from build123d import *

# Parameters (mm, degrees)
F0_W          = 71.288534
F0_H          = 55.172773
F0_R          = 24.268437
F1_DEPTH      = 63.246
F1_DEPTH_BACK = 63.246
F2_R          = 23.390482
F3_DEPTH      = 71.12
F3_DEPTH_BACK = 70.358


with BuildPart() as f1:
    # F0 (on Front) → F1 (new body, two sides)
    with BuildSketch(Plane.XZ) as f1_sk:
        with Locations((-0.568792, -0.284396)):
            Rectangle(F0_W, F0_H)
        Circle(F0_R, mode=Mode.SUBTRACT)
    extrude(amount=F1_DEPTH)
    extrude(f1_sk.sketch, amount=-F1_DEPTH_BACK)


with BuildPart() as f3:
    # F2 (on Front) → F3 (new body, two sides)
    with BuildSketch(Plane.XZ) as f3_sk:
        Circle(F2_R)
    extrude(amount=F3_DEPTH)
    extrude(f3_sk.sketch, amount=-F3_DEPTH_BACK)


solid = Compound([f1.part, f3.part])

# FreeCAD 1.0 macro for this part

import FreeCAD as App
import Part
import Sketcher
from FreeCAD import Vector
Q = App.Units.Quantity

doc = App.newDocument("Part")
body = doc.addObject("PartDesign::Body", "Body")

# Sketch on XZ plane
sketch1 = doc.addObject("Sketcher::SketchObject", "Sketch")
body.addObject(sketch1)
sketch1.AttachmentSupport = (doc.XZ_Plane, [""])
sketch1.MapMode = "FlatFace"
sketch1.addGeometry([
    Part.LineSegment(Vector(-36, 27, 0), Vector(-36, -28, 0)),  # 0
    Part.LineSegment(Vector(-36, -28, 0), Vector(35, -28, 0)),  # 1
    Part.LineSegment(Vector(35, -28, 0), Vector(35, 27, 0)),  # 2
    Part.LineSegment(Vector(35, 27, 0), Vector(-36, 27, 0)),  # 3
    Part.Circle(Vector(0, 0, 0), Vector(0, 0, 1), 24),  # 4
], False)
sketch1.addConstraint([
    Sketcher.Constraint("Coincident", 0, 2, 1, 1),
    Sketcher.Constraint("Coincident", 1, 2, 2, 1),
    Sketcher.Constraint("Coincident", 2, 2, 3, 1),
    Sketcher.Constraint("Coincident", 3, 2, 0, 1),
    Sketcher.Constraint("Vertical", 0),
    Sketcher.Constraint("Horizontal", 1),
    Sketcher.Constraint("Vertical", 2),
    Sketcher.Constraint("Horizontal", 3),
    Sketcher.Constraint("Coincident", 4, 3, -1, 1),
    Sketcher.Constraint("Diameter", 4, Q("48.536874 mm")),
    Sketcher.Constraint("DistanceX", 1, 1, 1, 2, Q("71.288534 mm")),
    Sketcher.Constraint("DistanceY", 0, 2, 0, 1, Q("55.172773 mm")),
    Sketcher.Constraint("DistanceX", 0, 2, -1, 1, Q("36.213059 mm")),
    Sketcher.Constraint("DistanceY", -1, 1, 2, 2, Q("27.30199 mm")),
])
pad1 = doc.addObject("PartDesign::Pad", "Pad")
body.addObject(pad1)
pad1.Profile = sketch1
pad1.Type = "TwoLengths"
pad1.Length = Q("2.49 in")
pad1.Length2 = Q("2.49 in")
body2 = doc.addObject("PartDesign::Body", "Body001")

# Sketch on XZ plane
sketch2 = doc.addObject("Sketcher::SketchObject", "Sketch001")
body2.addObject(sketch2)
sketch2.AttachmentSupport = (doc.getObject("XZ_Plane001"), [""])
sketch2.MapMode = "FlatFace"
sketch2.addGeometry(Part.Circle(Vector(0, 0, 0), Vector(0, 0, 1), 23), False)
sketch2.addConstraint([
    Sketcher.Constraint("Coincident", 0, 3, -1, 1),
    Sketcher.Constraint("Diameter", 0, Q("46.780964 mm")),
])
pad2 = doc.addObject("PartDesign::Pad", "Pad001")
body2.addObject(pad2)
pad2.Profile = sketch2
pad2.Type = "TwoLengths"
pad2.Length = Q("2.8 in")
pad2.Length2 = Q("2.77 in")

doc.recompute()
